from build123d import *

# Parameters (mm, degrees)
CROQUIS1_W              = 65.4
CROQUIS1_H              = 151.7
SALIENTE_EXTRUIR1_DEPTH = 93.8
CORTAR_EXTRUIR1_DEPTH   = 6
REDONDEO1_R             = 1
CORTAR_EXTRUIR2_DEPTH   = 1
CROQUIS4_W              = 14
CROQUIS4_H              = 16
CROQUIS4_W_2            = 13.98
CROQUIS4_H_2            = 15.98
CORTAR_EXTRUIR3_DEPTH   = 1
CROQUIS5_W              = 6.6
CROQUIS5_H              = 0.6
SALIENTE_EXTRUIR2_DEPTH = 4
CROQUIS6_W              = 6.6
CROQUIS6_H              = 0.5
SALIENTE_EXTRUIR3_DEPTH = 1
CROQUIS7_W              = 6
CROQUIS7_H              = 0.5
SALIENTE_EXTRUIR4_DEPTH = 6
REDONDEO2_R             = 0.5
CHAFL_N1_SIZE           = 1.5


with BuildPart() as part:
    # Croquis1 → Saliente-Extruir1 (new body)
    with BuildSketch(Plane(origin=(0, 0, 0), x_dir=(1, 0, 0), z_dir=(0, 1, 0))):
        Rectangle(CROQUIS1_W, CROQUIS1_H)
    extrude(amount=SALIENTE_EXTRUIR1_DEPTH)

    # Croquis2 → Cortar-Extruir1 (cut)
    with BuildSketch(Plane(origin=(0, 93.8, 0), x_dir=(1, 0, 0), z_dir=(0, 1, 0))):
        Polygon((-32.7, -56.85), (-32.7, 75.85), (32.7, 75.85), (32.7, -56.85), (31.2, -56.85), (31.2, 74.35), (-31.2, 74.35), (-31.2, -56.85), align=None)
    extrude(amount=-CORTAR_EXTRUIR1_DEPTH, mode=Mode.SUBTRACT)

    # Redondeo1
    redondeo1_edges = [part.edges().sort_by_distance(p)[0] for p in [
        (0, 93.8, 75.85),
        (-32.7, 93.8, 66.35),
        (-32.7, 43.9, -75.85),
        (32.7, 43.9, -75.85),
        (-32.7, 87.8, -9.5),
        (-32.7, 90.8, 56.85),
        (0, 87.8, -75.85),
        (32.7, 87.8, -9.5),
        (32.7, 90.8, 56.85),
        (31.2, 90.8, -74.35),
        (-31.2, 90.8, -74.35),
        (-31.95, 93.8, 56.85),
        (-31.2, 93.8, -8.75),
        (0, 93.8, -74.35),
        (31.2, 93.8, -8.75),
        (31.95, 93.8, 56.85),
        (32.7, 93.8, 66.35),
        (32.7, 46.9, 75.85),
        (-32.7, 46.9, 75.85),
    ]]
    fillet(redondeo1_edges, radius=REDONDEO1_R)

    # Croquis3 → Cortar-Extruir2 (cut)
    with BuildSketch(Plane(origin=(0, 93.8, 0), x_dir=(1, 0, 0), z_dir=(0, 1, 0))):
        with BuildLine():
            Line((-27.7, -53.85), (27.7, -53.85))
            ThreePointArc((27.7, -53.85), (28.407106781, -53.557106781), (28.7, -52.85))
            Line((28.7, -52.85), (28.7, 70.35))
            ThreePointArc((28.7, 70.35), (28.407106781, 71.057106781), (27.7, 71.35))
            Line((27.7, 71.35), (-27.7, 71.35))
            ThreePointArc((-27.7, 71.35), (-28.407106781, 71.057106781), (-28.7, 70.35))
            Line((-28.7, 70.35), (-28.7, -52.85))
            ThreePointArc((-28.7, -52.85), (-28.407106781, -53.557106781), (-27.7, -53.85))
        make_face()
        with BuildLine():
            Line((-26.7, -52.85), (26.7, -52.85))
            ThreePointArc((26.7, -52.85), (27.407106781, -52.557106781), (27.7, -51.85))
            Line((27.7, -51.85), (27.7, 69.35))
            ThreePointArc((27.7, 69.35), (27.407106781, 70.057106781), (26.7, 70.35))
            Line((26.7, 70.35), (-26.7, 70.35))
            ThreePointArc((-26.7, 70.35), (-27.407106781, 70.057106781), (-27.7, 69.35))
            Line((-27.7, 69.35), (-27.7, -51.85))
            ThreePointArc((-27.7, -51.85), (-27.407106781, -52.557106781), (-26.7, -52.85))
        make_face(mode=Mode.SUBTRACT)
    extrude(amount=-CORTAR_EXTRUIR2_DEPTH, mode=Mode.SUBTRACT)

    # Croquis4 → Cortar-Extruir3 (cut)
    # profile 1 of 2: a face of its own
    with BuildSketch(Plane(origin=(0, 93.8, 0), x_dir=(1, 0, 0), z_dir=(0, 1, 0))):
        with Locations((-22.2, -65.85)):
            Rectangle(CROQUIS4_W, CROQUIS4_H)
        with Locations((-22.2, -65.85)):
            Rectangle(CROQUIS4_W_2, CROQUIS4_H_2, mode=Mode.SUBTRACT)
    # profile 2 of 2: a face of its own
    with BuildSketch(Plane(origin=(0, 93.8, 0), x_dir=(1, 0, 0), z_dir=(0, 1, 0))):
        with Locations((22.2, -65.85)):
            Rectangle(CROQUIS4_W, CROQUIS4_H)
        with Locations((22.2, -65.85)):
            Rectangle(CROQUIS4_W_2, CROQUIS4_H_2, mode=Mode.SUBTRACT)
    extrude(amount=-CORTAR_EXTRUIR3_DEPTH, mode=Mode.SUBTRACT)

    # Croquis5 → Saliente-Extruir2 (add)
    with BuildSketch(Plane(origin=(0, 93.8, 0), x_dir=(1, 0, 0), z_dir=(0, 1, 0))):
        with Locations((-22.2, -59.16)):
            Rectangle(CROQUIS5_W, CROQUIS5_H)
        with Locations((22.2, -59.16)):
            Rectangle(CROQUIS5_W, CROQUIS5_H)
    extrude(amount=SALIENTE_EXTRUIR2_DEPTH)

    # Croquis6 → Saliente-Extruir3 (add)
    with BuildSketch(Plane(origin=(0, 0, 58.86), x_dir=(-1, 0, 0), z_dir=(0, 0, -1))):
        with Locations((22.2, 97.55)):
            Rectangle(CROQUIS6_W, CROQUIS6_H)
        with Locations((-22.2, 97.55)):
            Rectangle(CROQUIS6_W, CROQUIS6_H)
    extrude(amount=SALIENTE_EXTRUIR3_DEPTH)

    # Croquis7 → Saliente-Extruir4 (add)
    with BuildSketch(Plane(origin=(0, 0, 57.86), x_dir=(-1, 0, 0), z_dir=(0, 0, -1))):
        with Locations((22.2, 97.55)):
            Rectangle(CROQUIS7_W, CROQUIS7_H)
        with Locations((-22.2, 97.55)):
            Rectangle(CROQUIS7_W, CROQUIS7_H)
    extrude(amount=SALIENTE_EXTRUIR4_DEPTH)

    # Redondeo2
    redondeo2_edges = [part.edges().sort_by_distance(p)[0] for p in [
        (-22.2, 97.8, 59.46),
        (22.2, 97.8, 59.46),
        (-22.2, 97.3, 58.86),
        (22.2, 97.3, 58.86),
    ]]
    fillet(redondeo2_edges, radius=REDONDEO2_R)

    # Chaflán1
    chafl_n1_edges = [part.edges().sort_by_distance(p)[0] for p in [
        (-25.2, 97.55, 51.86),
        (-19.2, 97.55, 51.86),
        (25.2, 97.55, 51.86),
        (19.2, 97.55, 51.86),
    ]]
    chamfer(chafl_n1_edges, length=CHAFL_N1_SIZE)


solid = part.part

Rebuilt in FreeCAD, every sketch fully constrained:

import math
import FreeCAD as App
import Part
import Sketcher
from FreeCAD import Vector
Q = App.Units.Quantity


def edges_at(feature, points):
    """Names of the edges that pass closest to the given points."""
    edges = feature.Shape.Edges
    near = lambda p: min(range(len(edges)), key=lambda i: edges[i].distToShape(Part.Vertex(*p))[0])
    return sorted({f"Edge{near(p) + 1}" for p in points})


def add_polygon(sketch, points):
    """Adds a closed chain of lines whose ends are joined by coincident constraints."""
    first, n = sketch.GeometryCount, len(points)
    for a, b in zip(points, points[1:] + points[:1]):
        sketch.addGeometry(Part.LineSegment(App.Vector(*a, 0), App.Vector(*b, 0)), False)
    for i in range(n):
        sketch.addConstraint(Sketcher.Constraint("Coincident", first + i, 2, first + (i + 1) % n, 1))

doc = App.newDocument("Part")
body = doc.addObject("PartDesign::Body", "Body")

# Sketch on XZ plane
sketch1 = body.newObject("Sketcher::SketchObject", "Sketch")
sketch1.AttachmentSupport = (doc.getObject("XZ_Plane"), [""])
sketch1.MapMode = "FlatFace"
add_polygon(sketch1, [(-33, -76), (-33, 76), (33, 76), (33, -76)])  # lines 0-3
sketch1.addConstraint(Sketcher.Constraint("Vertical", 0))
sketch1.addConstraint(Sketcher.Constraint("Horizontal", 1))
sketch1.addConstraint(Sketcher.Constraint("Vertical", 2))
sketch1.addConstraint(Sketcher.Constraint("Horizontal", 3))
sketch1.addConstraint(Sketcher.Constraint("Symmetric", 0, 2, 2, 2, -1, 1))
sketch1.addConstraint(Sketcher.Constraint("DistanceX", 1, 1, 1, 2, Q("65.4 mm")))
sketch1.addConstraint(Sketcher.Constraint("DistanceY", 0, 1, 0, 2, Q("151.7 mm")))
pad1 = body.newObject("PartDesign::Pad", "Pad")
pad1.Profile = sketch1
pad1.Length = 93.8
pad1.Reversed = True

# Sketch on XZ plane
sketch2 = body.newObject("Sketcher::SketchObject", "Sketch001")
sketch2.AttachmentSupport = (doc.getObject("XZ_Plane"), [""])
sketch2.MapMode = "FlatFace"
sketch2.AttachmentOffset = App.Placement(Vector(0, 0, -93.8), App.Rotation())
add_polygon(sketch2, [(-32.7, -75.8), (-32.7, 56.9), (-31.2, 56.9), (-31.2, -74.3), (31.2, -74.3), (31.2, 56.9), (32.7, 56.9), (32.7, -75.8)])  # lines 0-7
sketch2.addConstraint(Sketcher.Constraint("Vertical", 0))
sketch2.addConstraint(Sketcher.Constraint("Horizontal", 1))
sketch2.addConstraint(Sketcher.Constraint("Vertical", 2))
sketch2.addConstraint(Sketcher.Constraint("Horizontal", 3))
sketch2.addConstraint(Sketcher.Constraint("Vertical", 4))
sketch2.addConstraint(Sketcher.Constraint("Horizontal", 5))
sketch2.addConstraint(Sketcher.Constraint("Vertical", 6))
sketch2.addConstraint(Sketcher.Constraint("Horizontal", 7))
sketch2.addConstraint(Sketcher.Constraint("Symmetric", 1, 2, 4, 2, -2))
sketch2.addConstraint(Sketcher.Constraint("Equal", 1, 5))
sketch2.addConstraint(Sketcher.Constraint("DistanceX", 1, 1, 1, 2, Q("1.5 mm")))
sketch2.addConstraint(Sketcher.Constraint("DistanceX", 3, 1, 3, 2, Q("62.4 mm")))
sketch2.addConstraint(Sketcher.Constraint("DistanceY", 0, 1, 0, 2, Q("132.7 mm")))
sketch2.addConstraint(Sketcher.Constraint("DistanceY", 2, 2, 2, 1, Q("131.2 mm")))
sketch2.addConstraint(Sketcher.Constraint("DistanceY", -1, 1, 0, 2, Q("56.85 mm")))
pocket1 = body.newObject("PartDesign::Pocket", "Pocket")
pocket1.Profile = sketch2
pocket1.Length = 6
pocket1.Reversed = True
doc.recompute()

fillet = body.newObject("PartDesign::Fillet", "Fillet")
fillet.Base = (pocket1, edges_at(pocket1, [
    (0, 93.8, 75.85),
    (-32.7, 93.8, 66.35),
    (-32.7, 43.9, -75.85),
    (32.7, 43.9, -75.85),
    (-32.7, 87.8, -9.5),
    (-32.7, 90.8, 56.85),
    (0, 87.8, -75.85),
    (32.7, 87.8, -9.5),
    (32.7, 90.8, 56.85),
    (31.2, 90.8, -74.35),
    (-31.2, 90.8, -74.35),
    (-31.95, 93.8, 56.85),
    (-31.2, 93.8, -8.75),
    (0, 93.8, -74.35),
    (31.2, 93.8, -8.75),
    (31.95, 93.8, 56.85),
    (32.7, 93.8, 66.35),
    (32.7, 46.9, 75.85),
    (-32.7, 46.9, 75.85),
]))
fillet.Radius = 1

# Sketch on XZ plane
sketch3 = body.newObject("Sketcher::SketchObject", "Sketch002")
sketch3.AttachmentSupport = (doc.getObject("XZ_Plane"), [""])
sketch3.MapMode = "FlatFace"
sketch3.AttachmentOffset = App.Placement(Vector(0, 0, -93.8), App.Rotation())
sketch3.addGeometry(Part.LineSegment(Vector(-27.7, 53.9, 0), Vector(27.7, 53.9, 0)), False)
sketch3.addGeometry(Part.ArcOfCircle(Part.Circle(Vector(27.7, 52.8, 0), Vector(0, 0, 1), 1), math.radians(0), math.radians(90)), False)
sketch3.addGeometry(Part.LineSegment(Vector(28.7, 52.9, 0), Vector(28.7, -70.3, 0)), False)
sketch3.addGeometry(Part.ArcOfCircle(Part.Circle(Vector(27.7, -70.3, 0), Vector(0, 0, 1), 1), math.radians(-90), math.radians(0)), False)
sketch3.addGeometry(Part.LineSegment(Vector(27.7, -71.3, 0), Vector(-27.7, -71.3, 0)), False)
sketch3.addGeometry(Part.ArcOfCircle(Part.Circle(Vector(-27.7, -70.3, 0), Vector(0, 0, 1), 1), math.radians(-180), math.radians(-90)), False)
sketch3.addGeometry(Part.LineSegment(Vector(-28.7, -70.3, 0), Vector(-28.7, 52.9, 0)), False)
sketch3.addGeometry(Part.ArcOfCircle(Part.Circle(Vector(-27.7, 52.8, 0), Vector(0, 0, 1), 1), math.radians(90), math.radians(180)), False)
sketch3.addGeometry(Part.LineSegment(Vector(26.7, 52.9, 0), Vector(-26.7, 52.9, 0)), False)
sketch3.addGeometry(Part.ArcOfCircle(Part.Circle(Vector(-26.7, 51.8, 0), Vector(0, 0, 1), 1), math.radians(90), math.radians(180)), False)
sketch3.addGeometry(Part.LineSegment(Vector(-27.7, 51.9, 0), Vector(-27.7, -69.3, 0)), False)
sketch3.addGeometry(Part.ArcOfCircle(Part.Circle(Vector(-26.7, -69.3, 0), Vector(0, 0, 1), 1), math.radians(-180), math.radians(-90)), False)
sketch3.addGeometry(Part.LineSegment(Vector(-26.7, -70.3, 0), Vector(26.7, -70.3, 0)), False)
sketch3.addGeometry(Part.ArcOfCircle(Part.Circle(Vector(26.7, -69.3, 0), Vector(0, 0, 1), 1), math.radians(-90), math.radians(0)), False)
sketch3.addGeometry(Part.LineSegment(Vector(27.7, -69.3, 0), Vector(27.7, 51.9, 0)), False)
sketch3.addGeometry(Part.ArcOfCircle(Part.Circle(Vector(26.7, 51.8, 0), Vector(0, 0, 1), 1), math.radians(0), math.radians(90)), False)
sketch3.addConstraint(Sketcher.Constraint("Tangent", 0, 2, 1, 2))
sketch3.addConstraint(Sketcher.Constraint("Tangent", 1, 1, 2, 1))
sketch3.addConstraint(Sketcher.Constraint("Tangent", 2, 2, 3, 2))
sketch3.addConstraint(Sketcher.Constraint("Tangent", 3, 1, 4, 1))
sketch3.addConstraint(Sketcher.Constraint("Tangent", 4, 2, 5, 2))
sketch3.addConstraint(Sketcher.Constraint("Tangent", 5, 1, 6, 1))
sketch3.addConstraint(Sketcher.Constraint("Tangent", 6, 2, 7, 2))
sketch3.addConstraint(Sketcher.Constraint("Tangent", 7, 1, 0, 1))
sketch3.addConstraint(Sketcher.Constraint("Tangent", 8, 2, 9, 1))
sketch3.addConstraint(Sketcher.Constraint("Tangent", 9, 2, 10, 1))
sketch3.addConstraint(Sketcher.Constraint("Tangent", 10, 2, 11, 1))
sketch3.addConstraint(Sketcher.Constraint("Tangent", 11, 2, 12, 1))
sketch3.addConstraint(Sketcher.Constraint("Tangent", 12, 2, 13, 1))
sketch3.addConstraint(Sketcher.Constraint("Tangent", 13, 2, 14, 1))
sketch3.addConstraint(Sketcher.Constraint("Tangent", 14, 2, 15, 1))
sketch3.addConstraint(Sketcher.Constraint("Tangent", 15, 2, 8, 1))
sketch3.addConstraint(Sketcher.Constraint("Horizontal", 0))
sketch3.addConstraint(Sketcher.Constraint("Vertical", 2))
sketch3.addConstraint(Sketcher.Constraint("Horizontal", 4))
sketch3.addConstraint(Sketcher.Constraint("Vertical", 6))
sketch3.addConstraint(Sketcher.Constraint("Horizontal", 8))
sketch3.addConstraint(Sketcher.Constraint("Vertical", 10))
sketch3.addConstraint(Sketcher.Constraint("Horizontal", 12))
sketch3.addConstraint(Sketcher.Constraint("Vertical", 14))
sketch3.addConstraint(Sketcher.Constraint("Equal", 1, 3))
sketch3.addConstraint(Sketcher.Constraint("Equal", 3, 5))
sketch3.addConstraint(Sketcher.Constraint("Equal", 5, 7))
sketch3.addConstraint(Sketcher.Constraint("Equal", 7, 9))
sketch3.addConstraint(Sketcher.Constraint("Equal", 9, 11))
sketch3.addConstraint(Sketcher.Constraint("Equal", 11, 13))
sketch3.addConstraint(Sketcher.Constraint("Equal", 13, 15))
sketch3.addConstraint(Sketcher.Constraint("Horizontal", 6, 2, 8, 2))
sketch3.addConstraint(Sketcher.Constraint("Horizontal", 5, 1, 11, 2))
sketch3.addConstraint(Sketcher.Constraint("Vertical", 7, 1, 9, 2))
sketch3.addConstraint(Sketcher.Constraint("Vertical", 3, 1, 13, 2))
sketch3.addConstraint(Sketcher.Constraint("Radius", 1, Q("1 mm")))
sketch3.addConstraint(Sketcher.Constraint("DistanceX", 0, 1, 0, 2, Q("55.4 mm")))
sketch3.addConstraint(Sketcher.Constraint("DistanceY", 2, 2, 2, 1, Q("123.2 mm")))
sketch3.addConstraint(Sketcher.Constraint("DistanceX", -1, 1, 1, 3, Q("27.7 mm")))
sketch3.addConstraint(Sketcher.Constraint("DistanceY", -1, 1, 1, 3, Q("52.85 mm")))
pocket2 = body.newObject("PartDesign::Pocket", "Pocket001")
pocket2.Profile = sketch3
pocket2.Length = 1
pocket2.Reversed = True

# Sketch on XZ plane
sketch4 = body.newObject("Sketcher::SketchObject", "Sketch003")
sketch4.AttachmentSupport = (doc.getObject("XZ_Plane"), [""])
sketch4.MapMode = "FlatFace"
sketch4.AttachmentOffset = App.Placement(Vector(0, 0, -93.8), App.Rotation())
add_polygon(sketch4, [(-29, 58), (-29, 74), (-15, 74), (-15, 58)])  # lines 0-3
add_polygon(sketch4, [(-15, 74), (-29, 74), (-29, 58), (-15, 58)])  # lines 4-7
add_polygon(sketch4, [(15, 58), (15, 74), (29, 74), (29, 58)])  # lines 8-11
add_polygon(sketch4, [(29, 74), (15, 74), (15, 58), (29, 58)])  # lines 12-15
sketch4.addConstraint(Sketcher.Constraint("Vertical", 0))
sketch4.addConstraint(Sketcher.Constraint("Horizontal", 1))
sketch4.addConstraint(Sketcher.Constraint("Vertical", 2))
sketch4.addConstraint(Sketcher.Constraint("Horizontal", 3))
sketch4.addConstraint(Sketcher.Constraint("Horizontal", 4))
sketch4.addConstraint(Sketcher.Constraint("Vertical", 5))
sketch4.addConstraint(Sketcher.Constraint("Horizontal", 6))
sketch4.addConstraint(Sketcher.Constraint("Vertical", 7))
sketch4.addConstraint(Sketcher.Constraint("Vertical", 8))
sketch4.addConstraint(Sketcher.Constraint("Horizontal", 9))
sketch4.addConstraint(Sketcher.Constraint("Vertical", 10))
sketch4.addConstraint(Sketcher.Constraint("Horizontal", 11))
sketch4.addConstraint(Sketcher.Constraint("Horizontal", 12))
sketch4.addConstraint(Sketcher.Constraint("Vertical", 13))
sketch4.addConstraint(Sketcher.Constraint("Horizontal", 14))
sketch4.addConstraint(Sketcher.Constraint("Vertical", 15))
sketch4.addConstraint(Sketcher.Constraint("Symmetric", 1, 2, 8, 2, -2))
sketch4.addConstraint(Sketcher.Constraint("Symmetric", 3, 2, 10, 2, -2))
sketch4.addConstraint(Sketcher.Constraint("Symmetric", 7, 2, 12, 2, -2))
sketch4.addConstraint(Sketcher.Constraint("Symmetric", 5, 2, 14, 2, -2))
sketch4.addConstraint(Sketcher.Constraint("DistanceX", 1, 1, 1, 2, Q("14 mm")))
sketch4.addConstraint(Sketcher.Constraint("DistanceY", 0, 1, 0, 2, Q("16 mm")))
sketch4.addConstraint(Sketcher.Constraint("DistanceX", 4, 2, 4, 1, Q("13.98 mm")))
sketch4.addConstraint(Sketcher.Constraint("DistanceY", 5, 2, 5, 1, Q("15.98 mm")))
sketch4.addConstraint(Sketcher.Constraint("DistanceX", 0, 2, -1, 1, Q("29.2 mm")))
sketch4.addConstraint(Sketcher.Constraint("DistanceY", -1, 1, 0, 2, Q("73.85 mm")))
sketch4.addConstraint(Sketcher.Constraint("DistanceX", 4, 2, -1, 1, Q("29.19 mm")))
sketch4.addConstraint(Sketcher.Constraint("DistanceY", -1, 1, 4, 2, Q("73.84 mm")))
pocket3 = body.newObject("PartDesign::Pocket", "Pocket002")
pocket3.Profile = sketch4
pocket3.Length = 1
pocket3.Reversed = True

# Sketch on XZ plane
sketch5 = body.newObject("Sketcher::SketchObject", "Sketch004")
sketch5.AttachmentSupport = (doc.getObject("XZ_Plane"), [""])
sketch5.MapMode = "FlatFace"
sketch5.AttachmentOffset = App.Placement(Vector(0, 0, -93.8), App.Rotation())
add_polygon(sketch5, [(-25.5, 58.9), (-25.5, 59.5), (-18.9, 59.5), (-18.9, 58.9)])  # lines 0-3
add_polygon(sketch5, [(18.9, 58.9), (18.9, 59.5), (25.5, 59.5), (25.5, 58.9)])  # lines 4-7
sketch5.addConstraint(Sketcher.Constraint("Vertical", 0))
sketch5.addConstraint(Sketcher.Constraint("Horizontal", 1))
sketch5.addConstraint(Sketcher.Constraint("Vertical", 2))
sketch5.addConstraint(Sketcher.Constraint("Horizontal", 3))
sketch5.addConstraint(Sketcher.Constraint("Vertical", 4))
sketch5.addConstraint(Sketcher.Constraint("Horizontal", 5))
sketch5.addConstraint(Sketcher.Constraint("Vertical", 6))
sketch5.addConstraint(Sketcher.Constraint("Horizontal", 7))
sketch5.addConstraint(Sketcher.Constraint("Symmetric", 1, 2, 4, 2, -2))
sketch5.addConstraint(Sketcher.Constraint("Symmetric", 3, 2, 6, 2, -2))
sketch5.addConstraint(Sketcher.Constraint("DistanceX", 1, 1, 1, 2, Q("6.6 mm")))
sketch5.addConstraint(Sketcher.Constraint("DistanceY", 0, 1, 0, 2, Q("0.6 mm")))
sketch5.addConstraint(Sketcher.Constraint("DistanceX", 0, 2, 5, 2, Q("51 mm")))
sketch5.addConstraint(Sketcher.Constraint("DistanceY", -1, 1, 0, 2, Q("59.46 mm")))
pad2 = body.newObject("PartDesign::Pad", "Pad001")
pad2.Profile = sketch5
pad2.Length = 4
pad2.Reversed = True

# Sketch on XY plane
sketch6 = body.newObject("Sketcher::SketchObject", "Sketch005")
sketch6.AttachmentSupport = (doc.getObject("XY_Plane"), [""])
sketch6.MapMode = "FlatFace"
sketch6.AttachmentOffset = App.Placement(Vector(0, 0, 58.86), App.Rotation())
add_polygon(sketch6, [(-18.9, 97.8), (-18.9, 97.3), (-25.5, 97.3), (-25.5, 97.8)])  # lines 0-3
add_polygon(sketch6, [(25.5, 97.8), (25.5, 97.3), (18.9, 97.3), (18.9, 97.8)])  # lines 4-7
sketch6.addConstraint(Sketcher.Constraint("Vertical", 0))
sketch6.addConstraint(Sketcher.Constraint("Horizontal", 1))
sketch6.addConstraint(Sketcher.Constraint("Vertical", 2))
sketch6.addConstraint(Sketcher.Constraint("Horizontal", 3))
sketch6.addConstraint(Sketcher.Constraint("Vertical", 4))
sketch6.addConstraint(Sketcher.Constraint("Horizontal", 5))
sketch6.addConstraint(Sketcher.Constraint("Vertical", 6))
sketch6.addConstraint(Sketcher.Constraint("Horizontal", 7))
sketch6.addConstraint(Sketcher.Constraint("Symmetric", 1, 2, 4, 2, -2))
sketch6.addConstraint(Sketcher.Constraint("Symmetric", 3, 2, 6, 2, -2))
sketch6.addConstraint(Sketcher.Constraint("DistanceX", 1, 2, 1, 1, Q("6.6 mm")))
sketch6.addConstraint(Sketcher.Constraint("DistanceY", 0, 2, 0, 1, Q("0.5 mm")))
sketch6.addConstraint(Sketcher.Constraint("DistanceX", 1, 2, 4, 2, Q("51 mm")))
sketch6.addConstraint(Sketcher.Constraint("DistanceY", -1, 1, 0, 2, Q("97.3 mm")))
pad3 = body.newObject("PartDesign::Pad", "Pad002")
pad3.Profile = sketch6
pad3.Length = 1
pad3.Reversed = True

# Sketch on XY plane
sketch7 = body.newObject("Sketcher::SketchObject", "Sketch006")
sketch7.AttachmentSupport = (doc.getObject("XY_Plane"), [""])
sketch7.MapMode = "FlatFace"
sketch7.AttachmentOffset = App.Placement(Vector(0, 0, 57.86), App.Rotation())
add_polygon(sketch7, [(-19.2, 97.8), (-19.2, 97.3), (-25.2, 97.3), (-25.2, 97.8)])  # lines 0-3
add_polygon(sketch7, [(25.2, 97.8), (25.2, 97.3), (19.2, 97.3), (19.2, 97.8)])  # lines 4-7
sketch7.addConstraint(Sketcher.Constraint("Vertical", 0))
sketch7.addConstraint(Sketcher.Constraint("Horizontal", 1))
sketch7.addConstraint(Sketcher.Constraint("Vertical", 2))
sketch7.addConstraint(Sketcher.Constraint("Horizontal", 3))
sketch7.addConstraint(Sketcher.Constraint("Vertical", 4))
sketch7.addConstraint(Sketcher.Constraint("Horizontal", 5))
sketch7.addConstraint(Sketcher.Constraint("Vertical", 6))
sketch7.addConstraint(Sketcher.Constraint("Horizontal", 7))
sketch7.addConstraint(Sketcher.Constraint("Symmetric", 1, 2, 4, 2, -2))
sketch7.addConstraint(Sketcher.Constraint("Symmetric", 3, 2, 6, 2, -2))
sketch7.addConstraint(Sketcher.Constraint("DistanceX", 1, 2, 1, 1, Q("6 mm")))
sketch7.addConstraint(Sketcher.Constraint("DistanceY", 0, 2, 0, 1, Q("0.5 mm")))
sketch7.addConstraint(Sketcher.Constraint("DistanceX", 0, 2, -1, 1, Q("19.2 mm")))
sketch7.addConstraint(Sketcher.Constraint("DistanceY", -1, 1, 0, 2, Q("97.3 mm")))
pad4 = body.newObject("PartDesign::Pad", "Pad003")
pad4.Profile = sketch7
pad4.Length = 6
pad4.Reversed = True
doc.recompute()

fillet2 = body.newObject("PartDesign::Fillet", "Fillet001")
fillet2.Base = (pad4, edges_at(pad4, [
    (-22.2, 97.8, 59.46),
    (22.2, 97.8, 59.46),
    (-22.2, 97.3, 58.86),
    (22.2, 97.3, 58.86),
]))
fillet2.Radius = 0.5
doc.recompute()

chamfer = body.newObject("PartDesign::Chamfer", "Chamfer")
chamfer.Base = (fillet2, edges_at(fillet2, [
    (-25.2, 97.55, 51.86),
    (-19.2, 97.55, 51.86),
    (25.2, 97.55, 51.86),
    (19.2, 97.55, 51.86),
]))
chamfer.Size = 1.5

doc.recompute()
